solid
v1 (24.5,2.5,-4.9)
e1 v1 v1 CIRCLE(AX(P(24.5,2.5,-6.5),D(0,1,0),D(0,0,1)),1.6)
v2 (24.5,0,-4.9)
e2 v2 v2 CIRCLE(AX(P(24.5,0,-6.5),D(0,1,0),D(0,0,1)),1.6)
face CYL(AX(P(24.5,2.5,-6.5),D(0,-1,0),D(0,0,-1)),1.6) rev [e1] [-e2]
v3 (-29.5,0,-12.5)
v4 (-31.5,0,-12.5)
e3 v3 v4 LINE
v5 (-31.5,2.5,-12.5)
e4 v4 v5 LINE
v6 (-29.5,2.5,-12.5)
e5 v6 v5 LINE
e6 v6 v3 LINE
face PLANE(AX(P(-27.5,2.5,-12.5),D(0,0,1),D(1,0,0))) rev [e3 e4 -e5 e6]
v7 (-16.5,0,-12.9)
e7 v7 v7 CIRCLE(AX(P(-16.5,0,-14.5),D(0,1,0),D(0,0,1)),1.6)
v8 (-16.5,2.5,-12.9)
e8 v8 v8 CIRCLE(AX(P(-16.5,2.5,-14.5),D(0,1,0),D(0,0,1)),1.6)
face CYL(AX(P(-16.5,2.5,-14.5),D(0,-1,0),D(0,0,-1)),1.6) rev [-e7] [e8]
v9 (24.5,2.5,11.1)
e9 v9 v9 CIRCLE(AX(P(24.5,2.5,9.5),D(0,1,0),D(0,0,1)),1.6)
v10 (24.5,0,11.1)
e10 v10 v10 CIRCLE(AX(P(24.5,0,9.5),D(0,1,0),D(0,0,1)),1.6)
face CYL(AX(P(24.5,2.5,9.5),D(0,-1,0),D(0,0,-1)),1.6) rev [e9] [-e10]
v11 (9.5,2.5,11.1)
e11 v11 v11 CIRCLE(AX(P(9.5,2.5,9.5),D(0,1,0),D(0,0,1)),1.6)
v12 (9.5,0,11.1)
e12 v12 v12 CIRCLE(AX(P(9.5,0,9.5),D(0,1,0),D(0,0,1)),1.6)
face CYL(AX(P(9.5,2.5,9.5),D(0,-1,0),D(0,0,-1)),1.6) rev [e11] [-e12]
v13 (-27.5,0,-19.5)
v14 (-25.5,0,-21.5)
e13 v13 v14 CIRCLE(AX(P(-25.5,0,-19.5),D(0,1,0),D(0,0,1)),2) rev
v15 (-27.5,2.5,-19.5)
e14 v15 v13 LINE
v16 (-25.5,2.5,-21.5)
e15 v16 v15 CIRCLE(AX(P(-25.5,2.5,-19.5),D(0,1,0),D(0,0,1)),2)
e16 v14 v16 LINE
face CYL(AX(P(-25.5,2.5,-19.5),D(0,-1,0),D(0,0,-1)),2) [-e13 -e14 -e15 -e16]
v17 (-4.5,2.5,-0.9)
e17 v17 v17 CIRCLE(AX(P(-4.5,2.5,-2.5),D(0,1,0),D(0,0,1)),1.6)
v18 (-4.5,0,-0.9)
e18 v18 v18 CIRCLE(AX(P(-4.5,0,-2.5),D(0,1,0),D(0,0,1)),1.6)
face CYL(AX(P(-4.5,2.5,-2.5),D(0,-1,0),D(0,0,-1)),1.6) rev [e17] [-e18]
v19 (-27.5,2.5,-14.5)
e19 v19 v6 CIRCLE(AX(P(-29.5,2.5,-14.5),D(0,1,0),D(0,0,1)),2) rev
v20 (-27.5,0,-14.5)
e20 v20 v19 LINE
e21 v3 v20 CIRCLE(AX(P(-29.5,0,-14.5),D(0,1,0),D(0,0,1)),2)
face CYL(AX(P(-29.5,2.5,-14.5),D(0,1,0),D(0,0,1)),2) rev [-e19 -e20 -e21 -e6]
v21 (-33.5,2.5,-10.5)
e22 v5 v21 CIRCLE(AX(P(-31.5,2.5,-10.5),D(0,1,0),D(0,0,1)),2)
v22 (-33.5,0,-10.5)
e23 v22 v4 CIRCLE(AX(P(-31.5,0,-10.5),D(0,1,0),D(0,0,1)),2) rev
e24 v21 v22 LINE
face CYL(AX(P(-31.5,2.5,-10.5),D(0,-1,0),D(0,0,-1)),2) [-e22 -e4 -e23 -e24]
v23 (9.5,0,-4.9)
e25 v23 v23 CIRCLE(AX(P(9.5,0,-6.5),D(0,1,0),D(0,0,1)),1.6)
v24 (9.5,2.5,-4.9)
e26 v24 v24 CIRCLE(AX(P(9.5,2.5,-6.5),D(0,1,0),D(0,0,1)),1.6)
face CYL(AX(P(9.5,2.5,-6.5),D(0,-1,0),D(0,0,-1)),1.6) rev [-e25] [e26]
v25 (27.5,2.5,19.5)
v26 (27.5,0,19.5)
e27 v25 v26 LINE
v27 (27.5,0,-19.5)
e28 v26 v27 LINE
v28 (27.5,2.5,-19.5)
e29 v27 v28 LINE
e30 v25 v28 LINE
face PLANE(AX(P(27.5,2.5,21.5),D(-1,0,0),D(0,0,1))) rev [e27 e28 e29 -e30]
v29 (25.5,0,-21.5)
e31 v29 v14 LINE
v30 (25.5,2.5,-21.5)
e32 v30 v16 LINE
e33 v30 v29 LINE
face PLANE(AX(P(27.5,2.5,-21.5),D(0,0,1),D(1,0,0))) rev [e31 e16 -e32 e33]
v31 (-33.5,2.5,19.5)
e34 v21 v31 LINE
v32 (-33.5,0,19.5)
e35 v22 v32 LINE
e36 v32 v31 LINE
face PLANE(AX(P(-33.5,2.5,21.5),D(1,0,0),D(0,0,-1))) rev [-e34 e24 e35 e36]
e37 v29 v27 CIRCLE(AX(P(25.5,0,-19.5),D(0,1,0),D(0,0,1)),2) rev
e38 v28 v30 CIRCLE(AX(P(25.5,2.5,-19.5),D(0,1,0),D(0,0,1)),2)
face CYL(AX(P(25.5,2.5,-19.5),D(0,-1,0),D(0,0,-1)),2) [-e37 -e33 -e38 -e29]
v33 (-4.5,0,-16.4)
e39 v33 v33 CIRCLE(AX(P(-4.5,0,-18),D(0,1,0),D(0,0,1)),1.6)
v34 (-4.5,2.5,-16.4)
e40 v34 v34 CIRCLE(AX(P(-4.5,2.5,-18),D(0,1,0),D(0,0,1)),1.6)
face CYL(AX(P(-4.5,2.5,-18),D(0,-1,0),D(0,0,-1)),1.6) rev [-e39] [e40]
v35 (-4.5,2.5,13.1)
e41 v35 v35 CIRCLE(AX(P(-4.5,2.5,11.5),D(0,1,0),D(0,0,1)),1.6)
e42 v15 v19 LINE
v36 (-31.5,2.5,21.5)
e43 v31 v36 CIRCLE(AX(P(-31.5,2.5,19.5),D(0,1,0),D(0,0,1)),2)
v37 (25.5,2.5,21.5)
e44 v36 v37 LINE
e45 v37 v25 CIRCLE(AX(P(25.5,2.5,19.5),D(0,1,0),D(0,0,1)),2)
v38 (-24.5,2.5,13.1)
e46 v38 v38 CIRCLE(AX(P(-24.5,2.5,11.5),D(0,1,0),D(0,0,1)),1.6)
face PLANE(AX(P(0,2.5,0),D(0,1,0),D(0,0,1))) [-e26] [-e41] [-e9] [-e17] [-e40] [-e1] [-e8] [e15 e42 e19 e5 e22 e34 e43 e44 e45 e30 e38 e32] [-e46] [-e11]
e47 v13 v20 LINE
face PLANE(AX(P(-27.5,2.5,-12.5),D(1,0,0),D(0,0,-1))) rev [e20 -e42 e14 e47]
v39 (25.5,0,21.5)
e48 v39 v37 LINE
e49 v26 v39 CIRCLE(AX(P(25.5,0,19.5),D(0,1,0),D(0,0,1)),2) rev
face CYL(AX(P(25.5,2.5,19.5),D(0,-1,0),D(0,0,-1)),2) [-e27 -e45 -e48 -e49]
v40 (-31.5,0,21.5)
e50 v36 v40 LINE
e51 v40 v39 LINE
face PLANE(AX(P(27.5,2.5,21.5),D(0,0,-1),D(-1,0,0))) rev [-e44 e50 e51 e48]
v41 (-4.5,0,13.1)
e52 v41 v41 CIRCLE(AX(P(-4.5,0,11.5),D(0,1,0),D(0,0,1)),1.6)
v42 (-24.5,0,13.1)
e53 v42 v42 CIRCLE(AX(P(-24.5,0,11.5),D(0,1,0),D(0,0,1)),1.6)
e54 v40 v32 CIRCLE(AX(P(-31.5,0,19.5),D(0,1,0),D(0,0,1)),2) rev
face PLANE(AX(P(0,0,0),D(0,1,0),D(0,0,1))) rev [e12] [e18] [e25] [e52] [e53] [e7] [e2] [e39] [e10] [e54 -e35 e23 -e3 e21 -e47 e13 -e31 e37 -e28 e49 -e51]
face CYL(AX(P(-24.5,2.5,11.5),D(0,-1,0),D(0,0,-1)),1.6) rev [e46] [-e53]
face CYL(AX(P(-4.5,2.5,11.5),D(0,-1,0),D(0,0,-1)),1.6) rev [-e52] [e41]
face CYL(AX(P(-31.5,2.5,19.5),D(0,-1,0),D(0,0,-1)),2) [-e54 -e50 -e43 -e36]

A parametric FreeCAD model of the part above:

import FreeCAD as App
import Part
import Sketcher

V = App.Vector


def edges_at(feature, points):
    """Names of the edges that pass closest to the given points."""
    edges = feature.Shape.Edges
    near = lambda p: min(range(len(edges)), key=lambda i: edges[i].distToShape(Part.Vertex(*p))[0])
    return sorted({f"Edge{near(p) + 1}" for p in points})


def add_polygon(sketch, points):
    """Adds a closed chain of lines whose ends are joined by coincident constraints."""
    first, n = sketch.GeometryCount, len(points)
    for a, b in zip(points, points[1:] + points[:1]):
        sketch.addGeometry(Part.LineSegment(App.Vector(*a, 0), App.Vector(*b, 0)), False)
    for i in range(n):
        sketch.addConstraint(Sketcher.Constraint("Coincident", first + i, 2, first + (i + 1) % n, 1))

doc = App.newDocument("Part")
params = doc.addObject("Spreadsheet::Sheet", "Params")
for row, (alias, value) in enumerate([
    ("sketch1_diameter", "3.2 mm"),
    ("sketch1_width", "61 mm"),
    ("sketch1_width2", "55 mm"),
    ("sketch1_height", "43 mm"),
    ("sketch1_height2", "9 mm"),
    ("pad1_length", "2.5 mm"),
    ("fillet_radius", "2 mm"),
], start=1):
    params.set(f"A{row}", alias)
    params.set(f"B{row}", "=" + value)
    params.setAlias(f"B{row}", alias)

body = doc.addObject("PartDesign::Body", "Body")

# Sketch on XZ plane
sketch1 = body.newObject("Sketcher::SketchObject", "Sketch")
sketch1.AttachmentSupport = (doc.getObject("XZ_Plane"), [""])
sketch1.MapMode = "FlatFace"
add_polygon(sketch1, [(-33.5, 21.5), (27.5, 21.5), (27.5, -21.5), (-27.5, -21.5), (-27.5, -12.5), (-33.5, -12.5)])  # lines 0-5
sketch1.addGeometry(Part.Circle(V(-16.5, -14.5, 0), V(0, 0, 1), 1.6), False)  # 6
sketch1.addGeometry(Part.Circle(V(-4.5, -18, 0), V(0, 0, 1), 1.6), False)  # 7
sketch1.addGeometry(Part.Circle(V(9.5, -6.5, 0), V(0, 0, 1), 1.6), False)  # 8
sketch1.addGeometry(Part.Circle(V(24.5, -6.5, 0), V(0, 0, 1), 1.6), False)  # 9
sketch1.addGeometry(Part.Circle(V(-4.5, -2.5, 0), V(0, 0, 1), 1.6), False)  # 10
sketch1.addGeometry(Part.Circle(V(-24.5, 11.5, 0), V(0, 0, 1), 1.6), False)  # 11
sketch1.addGeometry(Part.Circle(V(-4.5, 11.5, 0), V(0, 0, 1), 1.6), False)  # 12
sketch1.addGeometry(Part.Circle(V(9.5, 9.5, 0), V(0, 0, 1), 1.6), False)  # 13
sketch1.addGeometry(Part.Circle(V(24.5, 9.5, 0), V(0, 0, 1), 1.6), False)  # 14
sketch1.addConstraint([
    Sketcher.Constraint("Horizontal", 0),
    Sketcher.Constraint("Vertical", 1),
    Sketcher.Constraint("Horizontal", 2),
    Sketcher.Constraint("Vertical", 3),
    Sketcher.Constraint("Horizontal", 4),
    Sketcher.Constraint("Vertical", 5),
    Sketcher.Constraint("Equal", 6, 7),
    Sketcher.Constraint("Equal", 7, 8),
    Sketcher.Constraint("Equal", 8, 9),
    Sketcher.Constraint("Equal", 9, 10),
    Sketcher.Constraint("Equal", 10, 11),
    Sketcher.Constraint("Equal", 11, 12),
    Sketcher.Constraint("Equal", 12, 13),
    Sketcher.Constraint("Equal", 13, 14),
    Sketcher.Constraint("Symmetric", 0, 2, 2, 2, -1, 1),
    Sketcher.Constraint("Horizontal", 8, 3, 9, 3),
    Sketcher.Constraint("Horizontal", 11, 3, 12, 3),
    Sketcher.Constraint("Horizontal", 13, 3, 14, 3),
    Sketcher.Constraint("Vertical", 7, 3, 10, 3),
    Sketcher.Constraint("Vertical", 10, 3, 12, 3),
    Sketcher.Constraint("Vertical", 8, 3, 13, 3),
    Sketcher.Constraint("Vertical", 9, 3, 14, 3),
    Sketcher.Constraint("Diameter", 6, 3.2),
    Sketcher.Constraint("DistanceX", 0, 1, 0, 2, 61.0),
    Sketcher.Constraint("DistanceX", 2, 2, 2, 1, 55.0),
    Sketcher.Constraint("DistanceY", 1, 2, 1, 1, 43.0),
    Sketcher.Constraint("DistanceY", 3, 1, 3, 2, 9.0),
    Sketcher.Constraint("DistanceY", 7, 3, -1, 1, 18.0),
    Sketcher.Constraint("DistanceX", 6, 3, 7, 3, 12.0),
    Sketcher.Constraint("DistanceX", 7, 3, 8, 3, 14.0),
    Sketcher.Constraint("DistanceY", 6, 3, 8, 3, 8.0),
    Sketcher.Constraint("DistanceX", 8, 3, 9, 3, 15.0),
    Sketcher.Constraint("DistanceY", 8, 3, 10, 3, 4.0),
    Sketcher.Constraint("DistanceX", 11, 3, 10, 3, 20.0),
    Sketcher.Constraint("DistanceY", 10, 3, 11, 3, 14.0),
    Sketcher.Constraint("DistanceY", 13, 3, 12, 3, 2.0),
    Sketcher.Constraint("DistanceX", 14, 3, 0, 2, 3.0),
    Sketcher.Constraint("DistanceY", 14, 3, 0, 2, 12.0),
])
sketch1.setExpression("Constraints[28]", "Params.sketch1_diameter")
sketch1.setExpression("Constraints[29]", "Params.sketch1_width")
sketch1.setExpression("Constraints[30]", "Params.sketch1_width2")
sketch1.setExpression("Constraints[31]", "Params.sketch1_height")
sketch1.setExpression("Constraints[32]", "Params.sketch1_height2")
pad1 = body.newObject("PartDesign::Pad", "Pad")
pad1.Profile = sketch1
pad1.setExpression("Length", "Params.pad1_length")
pad1.Reversed = True
doc.recompute()

fillet = body.newObject("PartDesign::Fillet", "Fillet")
fillet.Base = (pad1, edges_at(pad1, [
    (27.5, 1.25, 21.5),
    (-33.5, 1.25, 21.5),
    (-33.5, 1.25, -12.5),
    (-27.5, 1.25, -12.5),
    (-27.5, 1.25, -21.5),
    (27.5, 1.25, -21.5),
]))
fillet.setExpression("Radius", "Params.fillet_radius")

doc.recompute()
